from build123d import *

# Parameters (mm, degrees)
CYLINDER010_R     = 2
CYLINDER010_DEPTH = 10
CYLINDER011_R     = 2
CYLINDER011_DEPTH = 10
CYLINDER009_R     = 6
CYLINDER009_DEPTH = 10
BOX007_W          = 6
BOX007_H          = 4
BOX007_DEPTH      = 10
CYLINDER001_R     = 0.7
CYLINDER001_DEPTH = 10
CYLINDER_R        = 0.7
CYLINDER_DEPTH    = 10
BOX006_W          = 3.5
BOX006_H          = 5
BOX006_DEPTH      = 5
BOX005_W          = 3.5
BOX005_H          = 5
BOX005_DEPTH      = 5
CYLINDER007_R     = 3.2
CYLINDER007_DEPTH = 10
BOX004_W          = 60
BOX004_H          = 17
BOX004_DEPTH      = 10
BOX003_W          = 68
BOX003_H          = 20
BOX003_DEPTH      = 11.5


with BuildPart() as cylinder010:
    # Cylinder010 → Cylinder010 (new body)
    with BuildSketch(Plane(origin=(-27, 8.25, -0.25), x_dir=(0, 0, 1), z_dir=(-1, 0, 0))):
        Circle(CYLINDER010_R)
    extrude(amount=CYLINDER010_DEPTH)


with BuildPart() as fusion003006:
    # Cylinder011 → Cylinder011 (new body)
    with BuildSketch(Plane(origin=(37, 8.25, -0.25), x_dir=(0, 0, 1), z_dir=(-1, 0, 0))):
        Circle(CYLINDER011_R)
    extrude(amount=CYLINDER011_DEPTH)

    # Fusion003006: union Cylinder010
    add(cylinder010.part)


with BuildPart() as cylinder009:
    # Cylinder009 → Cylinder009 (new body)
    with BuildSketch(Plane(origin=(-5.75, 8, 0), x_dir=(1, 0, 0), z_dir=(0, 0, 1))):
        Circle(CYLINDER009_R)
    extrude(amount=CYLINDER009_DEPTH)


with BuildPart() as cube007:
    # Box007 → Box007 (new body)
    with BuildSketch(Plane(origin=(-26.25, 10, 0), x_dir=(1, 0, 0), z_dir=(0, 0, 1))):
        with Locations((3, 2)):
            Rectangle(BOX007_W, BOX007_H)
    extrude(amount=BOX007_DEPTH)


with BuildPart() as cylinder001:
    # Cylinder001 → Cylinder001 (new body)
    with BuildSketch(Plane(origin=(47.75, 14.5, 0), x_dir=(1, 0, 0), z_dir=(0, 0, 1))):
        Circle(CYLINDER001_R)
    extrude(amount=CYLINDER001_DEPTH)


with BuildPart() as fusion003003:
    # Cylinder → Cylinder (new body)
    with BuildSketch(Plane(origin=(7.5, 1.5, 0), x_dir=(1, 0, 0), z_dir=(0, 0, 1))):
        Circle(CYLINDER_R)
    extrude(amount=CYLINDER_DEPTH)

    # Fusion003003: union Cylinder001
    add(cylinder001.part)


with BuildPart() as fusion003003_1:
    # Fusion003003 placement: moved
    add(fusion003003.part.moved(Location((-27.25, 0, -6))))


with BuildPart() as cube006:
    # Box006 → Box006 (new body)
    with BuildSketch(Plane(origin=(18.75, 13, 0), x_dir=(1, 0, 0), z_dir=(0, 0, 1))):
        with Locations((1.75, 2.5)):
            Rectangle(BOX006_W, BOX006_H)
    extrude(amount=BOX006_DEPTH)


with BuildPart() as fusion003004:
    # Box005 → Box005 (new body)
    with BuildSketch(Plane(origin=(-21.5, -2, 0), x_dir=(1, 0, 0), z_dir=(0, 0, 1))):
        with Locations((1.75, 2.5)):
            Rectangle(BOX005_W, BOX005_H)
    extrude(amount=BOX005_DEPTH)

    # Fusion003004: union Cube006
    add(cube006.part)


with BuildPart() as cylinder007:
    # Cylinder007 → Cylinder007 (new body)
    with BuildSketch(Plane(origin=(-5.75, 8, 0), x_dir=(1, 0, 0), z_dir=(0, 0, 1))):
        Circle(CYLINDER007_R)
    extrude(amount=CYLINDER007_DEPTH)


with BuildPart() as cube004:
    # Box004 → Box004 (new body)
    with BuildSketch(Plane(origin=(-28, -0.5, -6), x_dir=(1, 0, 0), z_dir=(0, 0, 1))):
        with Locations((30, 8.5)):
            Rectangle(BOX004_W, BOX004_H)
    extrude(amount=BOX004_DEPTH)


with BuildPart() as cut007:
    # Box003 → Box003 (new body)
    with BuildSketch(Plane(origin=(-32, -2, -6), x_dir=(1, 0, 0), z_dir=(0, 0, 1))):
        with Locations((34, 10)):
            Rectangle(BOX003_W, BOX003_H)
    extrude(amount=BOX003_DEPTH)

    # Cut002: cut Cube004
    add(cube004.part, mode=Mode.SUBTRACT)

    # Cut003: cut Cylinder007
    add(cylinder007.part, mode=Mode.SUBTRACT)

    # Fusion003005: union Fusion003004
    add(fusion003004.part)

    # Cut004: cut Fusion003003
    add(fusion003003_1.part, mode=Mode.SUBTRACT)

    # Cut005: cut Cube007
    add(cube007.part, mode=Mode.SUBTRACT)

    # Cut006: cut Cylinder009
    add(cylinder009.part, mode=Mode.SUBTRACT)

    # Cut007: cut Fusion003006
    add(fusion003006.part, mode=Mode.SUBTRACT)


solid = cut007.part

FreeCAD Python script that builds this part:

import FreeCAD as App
import Part
import Sketcher
Q = App.Units.Quantity

doc = App.newDocument("Part")
body = doc.addObject("PartDesign::Body", "Body")

# Sketch on YZ plane
sketch1 = doc.addObject("Sketcher::SketchObject", "Sketch")
body.addObject(sketch1)
sketch1.AttachmentSupport = (doc.YZ_Plane, [""])
sketch1.MapMode = "FlatFace"
sketch1.AttachmentOffset = App.Placement(App.Vector(0, 0, -27), App.Rotation())
sketch1.addGeometry(Part.Circle(App.Vector(8.2, -0.2, 0), App.Vector(0, 0, 1), 2), False)
sketch1.addConstraint([
    Sketcher.Constraint("Diameter", 0, Q("4 mm")),
    Sketcher.Constraint("DistanceX", -1, 1, 0, 3, Q("8.25 mm")),
    Sketcher.Constraint("DistanceY", 0, 3, -1, 1, Q("0.25 mm")),
])
pad1 = doc.addObject("PartDesign::Pad", "Pad")
body.addObject(pad1)
pad1.Profile = sketch1
pad1.Length = 10
pad1.Reversed = True
body2 = doc.addObject("PartDesign::Body", "Body001")
body2.AllowCompound = True

# Sketch on YZ plane
sketch2 = doc.addObject("Sketcher::SketchObject", "Sketch001")
body2.addObject(sketch2)
sketch2.AttachmentSupport = (doc.getObject("YZ_Plane001"), [""])
sketch2.MapMode = "FlatFace"
sketch2.AttachmentOffset = App.Placement(App.Vector(0, 0, 37), App.Rotation())
sketch2.addGeometry(Part.Circle(App.Vector(8.2, -0.2, 0), App.Vector(0, 0, 1), 2), False)
sketch2.addConstraint([
    Sketcher.Constraint("Diameter", 0, Q("4 mm")),
    Sketcher.Constraint("DistanceX", -1, 1, 0, 3, Q("8.25 mm")),
    Sketcher.Constraint("DistanceY", 0, 3, -1, 1, Q("0.25 mm")),
])
pad2 = doc.addObject("PartDesign::Pad", "Pad001")
body2.addObject(pad2)
pad2.Profile = sketch2
pad2.Length = 10
pad2.Reversed = True
doc.recompute()

boolean = doc.addObject("PartDesign::Boolean", "Boolean")
body2.addObject(boolean)
boolean.Type = "Fuse"
boolean.addObjects([body])
body3 = doc.addObject("PartDesign::Body", "Body002")

# Sketch on XY plane
sketch3 = doc.addObject("Sketcher::SketchObject", "Sketch002")
body3.addObject(sketch3)
sketch3.AttachmentSupport = (doc.getObject("XY_Plane002"), [""])
sketch3.MapMode = "FlatFace"
sketch3.addGeometry(Part.Circle(App.Vector(-6, 8, 0), App.Vector(0, 0, 1), 6), False)
sketch3.addConstraint([
    Sketcher.Constraint("Diameter", 0, Q("12 mm")),
    Sketcher.Constraint("DistanceY", -1, 1, 0, 3, Q("8 mm")),
    Sketcher.Constraint("DistanceX", 0, 3, -1, 1, Q("5.75 mm")),
])
pad3 = doc.addObject("PartDesign::Pad", "Pad002")
body3.addObject(pad3)
pad3.Profile = sketch3
pad3.Length = 10
body4 = doc.addObject("PartDesign::Body", "Body003")

# Sketch on XY plane
sketch4 = doc.addObject("Sketcher::SketchObject", "Sketch003")
body4.addObject(sketch4)
sketch4.AttachmentSupport = (doc.getObject("XY_Plane003"), [""])
sketch4.MapMode = "FlatFace"
sketch4.addGeometry([
    Part.LineSegment(App.Vector(-26.2, 14, 0), App.Vector(-26.2, 10, 0)),
    Part.LineSegment(App.Vector(-26.2, 10, 0), App.Vector(-20.2, 10, 0)),
    Part.LineSegment(App.Vector(-20.2, 10, 0), App.Vector(-20.2, 14, 0)),
    Part.LineSegment(App.Vector(-20.2, 14, 0), App.Vector(-26.2, 14, 0)),
], False)
sketch4.addConstraint([
    Sketcher.Constraint("Coincident", 0, 2, 1, 1),
    Sketcher.Constraint("Coincident", 1, 2, 2, 1),
    Sketcher.Constraint("Coincident", 2, 2, 3, 1),
    Sketcher.Constraint("Coincident", 3, 2, 0, 1),
    Sketcher.Constraint("Vertical", 0),
    Sketcher.Constraint("Horizontal", 1),
    Sketcher.Constraint("Vertical", 2),
    Sketcher.Constraint("Horizontal", 3),
    Sketcher.Constraint("DistanceX", 1, 1, 1, 2, Q("6 mm")),
    Sketcher.Constraint("DistanceY", 0, 2, 0, 1, Q("4 mm")),
    Sketcher.Constraint("DistanceY", -1, 1, 0, 2, Q("10 mm")),
    Sketcher.Constraint("DistanceX", 0, 2, -1, 1, Q("26.25 mm")),
])
pad4 = doc.addObject("PartDesign::Pad", "Pad003")
body4.addObject(pad4)
pad4.Profile = sketch4
pad4.Length = 10
body5 = doc.addObject("PartDesign::Body", "Body004")

# Sketch on XY plane
sketch5 = doc.addObject("Sketcher::SketchObject", "Sketch004")
body5.addObject(sketch5)
sketch5.AttachmentSupport = (doc.getObject("XY_Plane004"), [""])
sketch5.MapMode = "FlatFace"
sketch5.addGeometry(Part.Circle(App.Vector(47.8, 14.5, 0), App.Vector(0, 0, 1), 0.7), False)
sketch5.addConstraint([
    Sketcher.Constraint("Diameter", 0, Q("1.4 mm")),
    Sketcher.Constraint("DistanceY", -1, 1, 0, 3, Q("14.5 mm")),
    Sketcher.Constraint("DistanceX", -1, 1, 0, 3, Q("47.75 mm")),
])
pad5 = doc.addObject("PartDesign::Pad", "Pad004")
body5.addObject(pad5)
pad5.Profile = sketch5
pad5.Length = 10
body6 = doc.addObject("PartDesign::Body", "Body005")
body6.AllowCompound = True

# Sketch on XY plane
sketch6 = doc.addObject("Sketcher::SketchObject", "Sketch005")
body6.addObject(sketch6)
sketch6.AttachmentSupport = (doc.getObject("XY_Plane005"), [""])
sketch6.MapMode = "FlatFace"
sketch6.addGeometry(Part.Circle(App.Vector(7.5, 1.5, 0), App.Vector(0, 0, 1), 0.7), False)
sketch6.addConstraint([
    Sketcher.Constraint("Diameter", 0, Q("1.4 mm")),
    Sketcher.Constraint("DistanceX", -1, 1, 0, 3, Q("7.5 mm")),
    Sketcher.Constraint("DistanceY", -1, 1, 0, 3, Q("1.5 mm")),
])
pad6 = doc.addObject("PartDesign::Pad", "Pad005")
body6.addObject(pad6)
pad6.Profile = sketch6
pad6.Length = 10
doc.recompute()

boolean2 = doc.addObject("PartDesign::Boolean", "Boolean001")
body6.addObject(boolean2)
boolean2.Type = "Fuse"
boolean2.addObjects([body5])
body7 = doc.addObject("PartDesign::Body", "Body006")
body7.AllowCompound = True
doc.recompute()

body6.Placement = App.Placement(App.Vector(-27.25, 0, -6), App.Rotation(App.Vector(0, 0, 1), 0))
boolean3 = doc.addObject("PartDesign::Boolean", "Boolean002")
body7.addObject(boolean3)
boolean3.Type = "Fuse"
boolean3.addObjects([body6])
body8 = doc.addObject("PartDesign::Body", "Body007")

# Sketch on XY plane
sketch7 = doc.addObject("Sketcher::SketchObject", "Sketch006")
body8.addObject(sketch7)
sketch7.AttachmentSupport = (doc.getObject("XY_Plane007"), [""])
sketch7.MapMode = "FlatFace"
sketch7.addGeometry([
    Part.LineSegment(App.Vector(18.8, 18, 0), App.Vector(18.8, 13, 0)),
    Part.LineSegment(App.Vector(18.8, 13, 0), App.Vector(22.2, 13, 0)),
    Part.LineSegment(App.Vector(22.2, 13, 0), App.Vector(22.2, 18, 0)),
    Part.LineSegment(App.Vector(22.2, 18, 0), App.Vector(18.8, 18, 0)),
], False)
sketch7.addConstraint([
    Sketcher.Constraint("Coincident", 0, 2, 1, 1),
    Sketcher.Constraint("Coincident", 1, 2, 2, 1),
    Sketcher.Constraint("Coincident", 2, 2, 3, 1),
    Sketcher.Constraint("Coincident", 3, 2, 0, 1),
    Sketcher.Constraint("Vertical", 0),
    Sketcher.Constraint("Horizontal", 1),
    Sketcher.Constraint("Vertical", 2),
    Sketcher.Constraint("Horizontal", 3),
    Sketcher.Constraint("DistanceY", 0, 2, 0, 1, Q("5 mm")),
    Sketcher.Constraint("DistanceX", 1, 1, 1, 2, Q("3.5 mm")),
    Sketcher.Constraint("DistanceY", -1, 1, 0, 2, Q("13 mm")),
    Sketcher.Constraint("DistanceX", -1, 1, 0, 2, Q("18.75 mm")),
])
pad7 = doc.addObject("PartDesign::Pad", "Pad006")
body8.addObject(pad7)
pad7.Profile = sketch7
pad7.Length = 5
body9 = doc.addObject("PartDesign::Body", "Body008")
body9.AllowCompound = True

# Sketch on XY plane
sketch8 = doc.addObject("Sketcher::SketchObject", "Sketch007")
body9.addObject(sketch8)
sketch8.AttachmentSupport = (doc.getObject("XY_Plane008"), [""])
sketch8.MapMode = "FlatFace"
sketch8.addGeometry([
    Part.LineSegment(App.Vector(-21.5, 3, 0), App.Vector(-21.5, -2, 0)),
    Part.LineSegment(App.Vector(-21.5, -2, 0), App.Vector(-18, -2, 0)),
    Part.LineSegment(App.Vector(-18, -2, 0), App.Vector(-18, 3, 0)),
    Part.LineSegment(App.Vector(-18, 3, 0), App.Vector(-21.5, 3, 0)),
], False)
sketch8.addConstraint([
    Sketcher.Constraint("Coincident", 0, 2, 1, 1),
    Sketcher.Constraint("Coincident", 1, 2, 2, 1),
    Sketcher.Constraint("Coincident", 2, 2, 3, 1),
    Sketcher.Constraint("Coincident", 3, 2, 0, 1),
    Sketcher.Constraint("Vertical", 0),
    Sketcher.Constraint("Horizontal", 1),
    Sketcher.Constraint("Vertical", 2),
    Sketcher.Constraint("Horizontal", 3),
    Sketcher.Constraint("DistanceY", 0, 2, 0, 1, Q("5 mm")),
    Sketcher.Constraint("DistanceX", 1, 1, 1, 2, Q("3.5 mm")),
    Sketcher.Constraint("DistanceY", 0, 2, -1, 1, Q("2 mm")),
    Sketcher.Constraint("DistanceX", 1, 2, -1, 1, Q("18 mm")),
])
pad8 = doc.addObject("PartDesign::Pad", "Pad007")
body9.addObject(pad8)
pad8.Profile = sketch8
pad8.Length = 5
doc.recompute()

boolean4 = doc.addObject("PartDesign::Boolean", "Boolean003")
body9.addObject(boolean4)
boolean4.Type = "Fuse"
boolean4.addObjects([body8])
body10 = doc.addObject("PartDesign::Body", "Body009")

# Sketch on XY plane
sketch9 = doc.addObject("Sketcher::SketchObject", "Sketch008")
body10.addObject(sketch9)
sketch9.AttachmentSupport = (doc.getObject("XY_Plane009"), [""])
sketch9.MapMode = "FlatFace"
sketch9.addGeometry(Part.Circle(App.Vector(-5.8, 8, 0), App.Vector(0, 0, 1), 3.2), False)
sketch9.addConstraint([
    Sketcher.Constraint("Diameter", 0, Q("6.4 mm")),
    Sketcher.Constraint("DistanceY", -1, 1, 0, 3, Q("8 mm")),
    Sketcher.Constraint("DistanceX", 0, 3, -1, 1, Q("5.75 mm")),
])
pad9 = doc.addObject("PartDesign::Pad", "Pad008")
body10.addObject(pad9)
pad9.Profile = sketch9
pad9.Length = 10
body11 = doc.addObject("PartDesign::Body", "Body010")

# Sketch on XY plane
sketch10 = doc.addObject("Sketcher::SketchObject", "Sketch009")
body11.addObject(sketch10)
sketch10.AttachmentSupport = (doc.getObject("XY_Plane010"), [""])
sketch10.MapMode = "FlatFace"
sketch10.AttachmentOffset = App.Placement(App.Vector(0, 0, -6), App.Rotation())
sketch10.addGeometry([
    Part.LineSegment(App.Vector(-28, 16, 0), App.Vector(-28, 0, 0)),
    Part.LineSegment(App.Vector(-28, 0, 0), App.Vector(32, 0, 0)),
    Part.LineSegment(App.Vector(32, 0, 0), App.Vector(32, 16, 0)),
    Part.LineSegment(App.Vector(32, 16, 0), App.Vector(-28, 16, 0)),
], False)
sketch10.addConstraint([
    Sketcher.Constraint("Coincident", 0, 2, 1, 1),
    Sketcher.Constraint("Coincident", 1, 2, 2, 1),
    Sketcher.Constraint("Coincident", 2, 2, 3, 1),
    Sketcher.Constraint("Coincident", 3, 2, 0, 1),
    Sketcher.Constraint("Vertical", 0),
    Sketcher.Constraint("Horizontal", 1),
    Sketcher.Constraint("Vertical", 2),
    Sketcher.Constraint("Horizontal", 3),
    Sketcher.Constraint("DistanceX", 1, 1, 1, 2, Q("60 mm")),
    Sketcher.Constraint("DistanceY", 0, 2, 0, 1, Q("17 mm")),
    Sketcher.Constraint("DistanceX", 0, 2, -1, 1, Q("28 mm")),
    Sketcher.Constraint("DistanceY", 0, 2, -1, 1, Q("0.5 mm")),
])
pad10 = doc.addObject("PartDesign::Pad", "Pad009")
body11.addObject(pad10)
pad10.Profile = sketch10
pad10.Length = 10
body12 = doc.addObject("PartDesign::Body", "Body011")

# Sketch on XY plane
sketch11 = doc.addObject("Sketcher::SketchObject", "Sketch010")
body12.addObject(sketch11)
sketch11.AttachmentSupport = (doc.getObject("XY_Plane011"), [""])
sketch11.MapMode = "FlatFace"
sketch11.AttachmentOffset = App.Placement(App.Vector(0, 0, -6), App.Rotation())
sketch11.addGeometry([
    Part.LineSegment(App.Vector(-32, 18, 0), App.Vector(-32, -2, 0)),
    Part.LineSegment(App.Vector(-32, -2, 0), App.Vector(36, -2, 0)),
    Part.LineSegment(App.Vector(36, -2, 0), App.Vector(36, 18, 0)),
    Part.LineSegment(App.Vector(36, 18, 0), App.Vector(-32, 18, 0)),
], False)
sketch11.addConstraint([
    Sketcher.Constraint("Coincident", 0, 2, 1, 1),
    Sketcher.Constraint("Coincident", 1, 2, 2, 1),
    Sketcher.Constraint("Coincident", 2, 2, 3, 1),
    Sketcher.Constraint("Coincident", 3, 2, 0, 1),
    Sketcher.Constraint("Vertical", 0),
    Sketcher.Constraint("Horizontal", 1),
    Sketcher.Constraint("Vertical", 2),
    Sketcher.Constraint("Horizontal", 3),
    Sketcher.Constraint("DistanceX", 1, 1, 1, 2, Q("68 mm")),
    Sketcher.Constraint("DistanceY", 0, 2, 0, 1, Q("20 mm")),
    Sketcher.Constraint("DistanceX", 0, 2, -1, 1, Q("32 mm")),
    Sketcher.Constraint("DistanceY", 0, 2, -1, 1, Q("2 mm")),
])
pad11 = doc.addObject("PartDesign::Pad", "Pad010")
body12.addObject(pad11)
pad11.Profile = sketch11
pad11.Length = 11.5
doc.recompute()

boolean5 = doc.addObject("PartDesign::Boolean", "Boolean004")
body12.addObject(boolean5)
boolean5.Type = "Cut"
boolean5.addObjects([body11])
doc.recompute()

boolean6 = doc.addObject("PartDesign::Boolean", "Boolean005")
body12.addObject(boolean6)
boolean6.Type = "Cut"
boolean6.addObjects([body10])
doc.recompute()

boolean7 = doc.addObject("PartDesign::Boolean", "Boolean006")
body12.addObject(boolean7)
boolean7.Type = "Fuse"
boolean7.addObjects([body9])
doc.recompute()

boolean8 = doc.addObject("PartDesign::Boolean", "Boolean007")
body12.addObject(boolean8)
boolean8.Type = "Cut"
boolean8.addObjects([body7])
doc.recompute()

boolean9 = doc.addObject("PartDesign::Boolean", "Boolean008")
body12.addObject(boolean9)
boolean9.Type = "Cut"
boolean9.addObjects([body4])
doc.recompute()

boolean10 = doc.addObject("PartDesign::Boolean", "Boolean009")
body12.addObject(boolean10)
boolean10.Type = "Cut"
boolean10.addObjects([body3])
doc.recompute()

boolean11 = doc.addObject("PartDesign::Boolean", "Boolean010")
body12.addObject(boolean11)
boolean11.Type = "Cut"
boolean11.addObjects([body2])

doc.recompute()
